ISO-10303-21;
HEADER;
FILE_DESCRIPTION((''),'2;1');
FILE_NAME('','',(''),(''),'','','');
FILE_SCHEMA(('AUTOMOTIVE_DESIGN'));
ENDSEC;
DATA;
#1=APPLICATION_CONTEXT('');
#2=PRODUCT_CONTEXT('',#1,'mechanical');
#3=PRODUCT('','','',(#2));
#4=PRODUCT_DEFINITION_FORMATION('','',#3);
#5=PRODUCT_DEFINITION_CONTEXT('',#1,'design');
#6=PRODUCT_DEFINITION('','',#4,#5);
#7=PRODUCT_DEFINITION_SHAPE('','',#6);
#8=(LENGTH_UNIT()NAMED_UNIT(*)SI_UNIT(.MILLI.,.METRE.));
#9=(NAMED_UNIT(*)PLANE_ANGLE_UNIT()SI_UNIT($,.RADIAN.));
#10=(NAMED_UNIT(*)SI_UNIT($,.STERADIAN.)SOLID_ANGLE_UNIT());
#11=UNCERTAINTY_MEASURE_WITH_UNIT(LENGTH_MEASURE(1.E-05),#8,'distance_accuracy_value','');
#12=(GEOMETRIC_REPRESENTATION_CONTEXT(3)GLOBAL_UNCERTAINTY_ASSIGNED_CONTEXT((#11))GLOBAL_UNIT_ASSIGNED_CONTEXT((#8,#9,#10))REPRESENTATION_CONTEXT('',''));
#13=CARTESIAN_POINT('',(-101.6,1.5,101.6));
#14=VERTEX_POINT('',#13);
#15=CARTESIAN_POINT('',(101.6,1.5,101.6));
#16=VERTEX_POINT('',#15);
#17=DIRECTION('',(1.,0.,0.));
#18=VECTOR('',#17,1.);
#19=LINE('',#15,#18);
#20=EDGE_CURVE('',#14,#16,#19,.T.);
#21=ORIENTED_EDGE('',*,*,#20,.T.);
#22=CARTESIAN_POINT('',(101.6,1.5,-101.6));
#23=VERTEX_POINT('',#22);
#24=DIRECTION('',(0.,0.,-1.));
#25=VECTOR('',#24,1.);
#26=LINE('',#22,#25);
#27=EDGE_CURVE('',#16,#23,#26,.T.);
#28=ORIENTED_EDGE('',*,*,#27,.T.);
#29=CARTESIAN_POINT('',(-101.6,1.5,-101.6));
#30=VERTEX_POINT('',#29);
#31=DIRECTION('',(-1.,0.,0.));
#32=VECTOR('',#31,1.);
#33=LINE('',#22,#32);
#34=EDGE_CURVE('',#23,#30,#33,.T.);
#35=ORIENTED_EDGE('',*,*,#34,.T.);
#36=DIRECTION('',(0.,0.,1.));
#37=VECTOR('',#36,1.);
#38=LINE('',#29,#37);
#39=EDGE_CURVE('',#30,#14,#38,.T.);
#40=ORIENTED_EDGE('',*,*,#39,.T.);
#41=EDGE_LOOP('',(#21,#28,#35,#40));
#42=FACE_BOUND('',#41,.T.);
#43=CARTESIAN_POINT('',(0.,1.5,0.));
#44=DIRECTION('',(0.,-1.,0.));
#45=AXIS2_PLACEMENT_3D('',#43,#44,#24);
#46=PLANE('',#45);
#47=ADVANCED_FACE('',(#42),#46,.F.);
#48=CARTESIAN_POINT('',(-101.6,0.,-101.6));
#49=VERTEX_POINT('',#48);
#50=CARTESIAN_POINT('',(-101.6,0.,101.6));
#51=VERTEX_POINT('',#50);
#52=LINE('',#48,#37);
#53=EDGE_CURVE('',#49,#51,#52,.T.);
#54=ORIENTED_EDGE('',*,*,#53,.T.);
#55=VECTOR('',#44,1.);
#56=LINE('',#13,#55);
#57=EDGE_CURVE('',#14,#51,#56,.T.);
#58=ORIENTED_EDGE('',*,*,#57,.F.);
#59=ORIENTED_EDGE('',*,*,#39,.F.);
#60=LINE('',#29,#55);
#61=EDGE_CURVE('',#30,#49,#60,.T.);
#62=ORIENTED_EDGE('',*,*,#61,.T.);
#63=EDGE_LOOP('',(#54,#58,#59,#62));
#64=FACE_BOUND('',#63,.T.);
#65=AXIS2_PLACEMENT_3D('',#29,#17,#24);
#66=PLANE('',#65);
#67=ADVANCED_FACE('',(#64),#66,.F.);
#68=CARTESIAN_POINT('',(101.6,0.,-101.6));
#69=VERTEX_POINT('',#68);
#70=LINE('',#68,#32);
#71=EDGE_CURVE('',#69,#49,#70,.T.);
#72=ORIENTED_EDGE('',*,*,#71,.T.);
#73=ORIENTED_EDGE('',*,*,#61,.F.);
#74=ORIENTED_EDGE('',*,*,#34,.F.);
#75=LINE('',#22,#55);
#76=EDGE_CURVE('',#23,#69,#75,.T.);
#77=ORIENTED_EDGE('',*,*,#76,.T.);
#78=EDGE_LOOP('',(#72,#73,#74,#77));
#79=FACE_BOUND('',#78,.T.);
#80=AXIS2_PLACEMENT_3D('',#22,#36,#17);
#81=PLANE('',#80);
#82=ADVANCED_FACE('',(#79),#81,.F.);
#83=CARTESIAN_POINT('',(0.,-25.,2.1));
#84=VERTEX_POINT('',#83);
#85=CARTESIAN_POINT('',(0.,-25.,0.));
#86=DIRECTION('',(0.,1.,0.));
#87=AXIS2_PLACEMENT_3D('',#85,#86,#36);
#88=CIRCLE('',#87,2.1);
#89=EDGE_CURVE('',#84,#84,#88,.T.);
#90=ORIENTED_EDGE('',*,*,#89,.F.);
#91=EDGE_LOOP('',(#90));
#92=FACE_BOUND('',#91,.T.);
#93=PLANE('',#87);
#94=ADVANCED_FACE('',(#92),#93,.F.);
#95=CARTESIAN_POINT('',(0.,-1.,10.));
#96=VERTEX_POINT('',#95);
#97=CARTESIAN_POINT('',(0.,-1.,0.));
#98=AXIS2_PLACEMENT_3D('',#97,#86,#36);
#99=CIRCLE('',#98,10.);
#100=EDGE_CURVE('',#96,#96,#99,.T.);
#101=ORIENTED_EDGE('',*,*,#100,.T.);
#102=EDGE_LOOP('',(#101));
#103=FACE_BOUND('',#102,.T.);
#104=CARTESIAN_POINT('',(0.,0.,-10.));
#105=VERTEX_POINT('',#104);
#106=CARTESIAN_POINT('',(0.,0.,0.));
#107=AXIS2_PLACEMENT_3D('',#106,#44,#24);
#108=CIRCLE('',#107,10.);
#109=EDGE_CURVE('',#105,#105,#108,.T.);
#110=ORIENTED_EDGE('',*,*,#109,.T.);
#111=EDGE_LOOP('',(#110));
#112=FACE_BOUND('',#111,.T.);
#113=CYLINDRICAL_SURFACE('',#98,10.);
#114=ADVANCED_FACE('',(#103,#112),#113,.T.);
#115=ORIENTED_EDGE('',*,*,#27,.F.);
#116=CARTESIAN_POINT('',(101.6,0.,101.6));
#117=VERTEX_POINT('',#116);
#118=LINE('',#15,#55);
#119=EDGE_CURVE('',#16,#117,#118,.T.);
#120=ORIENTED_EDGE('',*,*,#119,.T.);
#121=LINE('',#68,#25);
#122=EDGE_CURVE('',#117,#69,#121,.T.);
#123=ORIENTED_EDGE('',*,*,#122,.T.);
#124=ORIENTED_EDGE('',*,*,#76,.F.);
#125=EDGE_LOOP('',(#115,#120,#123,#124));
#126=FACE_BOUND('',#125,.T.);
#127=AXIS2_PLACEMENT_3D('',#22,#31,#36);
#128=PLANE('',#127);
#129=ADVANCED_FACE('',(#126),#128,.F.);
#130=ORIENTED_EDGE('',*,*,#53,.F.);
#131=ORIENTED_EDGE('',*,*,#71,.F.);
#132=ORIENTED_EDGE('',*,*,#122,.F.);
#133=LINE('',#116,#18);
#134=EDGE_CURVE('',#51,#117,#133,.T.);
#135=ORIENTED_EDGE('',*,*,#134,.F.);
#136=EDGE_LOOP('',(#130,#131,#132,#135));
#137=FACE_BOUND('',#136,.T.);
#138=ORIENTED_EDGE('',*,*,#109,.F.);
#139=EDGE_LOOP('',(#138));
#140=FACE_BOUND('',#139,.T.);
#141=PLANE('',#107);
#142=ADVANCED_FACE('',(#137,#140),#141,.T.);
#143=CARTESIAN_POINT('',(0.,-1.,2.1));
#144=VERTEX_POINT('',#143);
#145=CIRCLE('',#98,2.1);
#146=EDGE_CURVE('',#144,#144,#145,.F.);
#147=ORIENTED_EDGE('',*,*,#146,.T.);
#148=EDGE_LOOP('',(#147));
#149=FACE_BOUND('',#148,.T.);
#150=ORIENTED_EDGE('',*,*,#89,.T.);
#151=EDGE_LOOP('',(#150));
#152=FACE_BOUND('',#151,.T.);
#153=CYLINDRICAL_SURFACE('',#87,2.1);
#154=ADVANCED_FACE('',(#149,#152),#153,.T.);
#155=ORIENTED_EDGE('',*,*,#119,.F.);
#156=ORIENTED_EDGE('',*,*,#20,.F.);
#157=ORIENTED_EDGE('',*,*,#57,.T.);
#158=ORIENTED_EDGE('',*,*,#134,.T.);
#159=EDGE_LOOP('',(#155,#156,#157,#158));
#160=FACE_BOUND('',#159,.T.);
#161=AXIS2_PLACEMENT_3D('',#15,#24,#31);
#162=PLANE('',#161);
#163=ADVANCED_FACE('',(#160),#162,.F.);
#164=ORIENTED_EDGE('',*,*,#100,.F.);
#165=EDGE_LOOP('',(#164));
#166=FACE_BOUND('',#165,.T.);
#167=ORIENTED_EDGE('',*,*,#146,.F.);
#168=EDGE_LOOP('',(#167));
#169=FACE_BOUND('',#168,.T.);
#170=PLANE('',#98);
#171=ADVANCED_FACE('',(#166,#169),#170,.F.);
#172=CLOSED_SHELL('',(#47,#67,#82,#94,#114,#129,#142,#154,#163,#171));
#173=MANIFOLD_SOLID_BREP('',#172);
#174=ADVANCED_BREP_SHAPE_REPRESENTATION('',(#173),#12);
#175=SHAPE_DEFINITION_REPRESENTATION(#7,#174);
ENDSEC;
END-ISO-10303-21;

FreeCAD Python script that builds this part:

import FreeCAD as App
import Part
import Sketcher
Q = App.Units.Quantity


def add_polygon(sketch, points):
    """Adds a closed chain of lines whose ends are joined by coincident constraints."""
    first, n = sketch.GeometryCount, len(points)
    for a, b in zip(points, points[1:] + points[:1]):
        sketch.addGeometry(Part.LineSegment(App.Vector(*a, 0), App.Vector(*b, 0)), False)
    for i in range(n):
        sketch.addConstraint(Sketcher.Constraint("Coincident", first + i, 2, first + (i + 1) % n, 1))

doc = App.newDocument("Part")
body = doc.addObject("PartDesign::Body", "Body")

sketch1 = body.newObject("Sketcher::SketchObject", "Sketch")
sketch1.AttachmentSupport = (doc.getObject("XZ_Plane"), [""])
sketch1.MapMode = "FlatFace"
sketch1.addGeometry(Part.Circle(App.Vector(0, 0, 0), App.Vector(0, 0, 1), 2.1), False)
sketch1.addConstraint(Sketcher.Constraint("Coincident", 0, 3, -1, 1))
sketch1.addConstraint(Sketcher.Constraint("Diameter", 0, Q("4.2 mm")))
pad1 = body.newObject("PartDesign::Pad", "Pad")
pad1.Profile = sketch1
pad1.Length = 25

sketch2 = body.newObject("Sketcher::SketchObject", "Sketch001")
sketch2.AttachmentSupport = (doc.getObject("XZ_Plane"), [""])
sketch2.MapMode = "FlatFace"
add_polygon(sketch2, [(-102, -102), (-102, 102), (102, 102), (102, -102)])
sketch2.addConstraint(Sketcher.Constraint("Vertical", 0))
sketch2.addConstraint(Sketcher.Constraint("Horizontal", 1))
sketch2.addConstraint(Sketcher.Constraint("Vertical", 2))
sketch2.addConstraint(Sketcher.Constraint("Horizontal", 3))
sketch2.addConstraint(Sketcher.Constraint("Symmetric", 0, 2, 2, 2, -1, 1))
sketch2.addConstraint(Sketcher.Constraint("Equal", 3, 0))
sketch2.addConstraint(Sketcher.Constraint("DistanceX", 1, 1, 1, 2, Q("203.2 mm")))
pad2 = body.newObject("PartDesign::Pad", "Pad001")
pad2.Profile = sketch2
pad2.Length = 1.5
pad2.Reversed = True

sketch3 = body.newObject("Sketcher::SketchObject", "Sketch002")
sketch3.AttachmentSupport = (doc.getObject("XZ_Plane"), [""])
sketch3.MapMode = "FlatFace"
sketch3.addGeometry(Part.Circle(App.Vector(0, 0, 0), App.Vector(0, 0, 1), 10), False)
sketch3.addConstraint(Sketcher.Constraint("Coincident", 0, 3, -1, 1))
sketch3.addConstraint(Sketcher.Constraint("Diameter", 0, Q("20 mm")))
pad3 = body.newObject("PartDesign::Pad", "Pad002")
pad3.Profile = sketch3
pad3.Length = 1

doc.recompute()
